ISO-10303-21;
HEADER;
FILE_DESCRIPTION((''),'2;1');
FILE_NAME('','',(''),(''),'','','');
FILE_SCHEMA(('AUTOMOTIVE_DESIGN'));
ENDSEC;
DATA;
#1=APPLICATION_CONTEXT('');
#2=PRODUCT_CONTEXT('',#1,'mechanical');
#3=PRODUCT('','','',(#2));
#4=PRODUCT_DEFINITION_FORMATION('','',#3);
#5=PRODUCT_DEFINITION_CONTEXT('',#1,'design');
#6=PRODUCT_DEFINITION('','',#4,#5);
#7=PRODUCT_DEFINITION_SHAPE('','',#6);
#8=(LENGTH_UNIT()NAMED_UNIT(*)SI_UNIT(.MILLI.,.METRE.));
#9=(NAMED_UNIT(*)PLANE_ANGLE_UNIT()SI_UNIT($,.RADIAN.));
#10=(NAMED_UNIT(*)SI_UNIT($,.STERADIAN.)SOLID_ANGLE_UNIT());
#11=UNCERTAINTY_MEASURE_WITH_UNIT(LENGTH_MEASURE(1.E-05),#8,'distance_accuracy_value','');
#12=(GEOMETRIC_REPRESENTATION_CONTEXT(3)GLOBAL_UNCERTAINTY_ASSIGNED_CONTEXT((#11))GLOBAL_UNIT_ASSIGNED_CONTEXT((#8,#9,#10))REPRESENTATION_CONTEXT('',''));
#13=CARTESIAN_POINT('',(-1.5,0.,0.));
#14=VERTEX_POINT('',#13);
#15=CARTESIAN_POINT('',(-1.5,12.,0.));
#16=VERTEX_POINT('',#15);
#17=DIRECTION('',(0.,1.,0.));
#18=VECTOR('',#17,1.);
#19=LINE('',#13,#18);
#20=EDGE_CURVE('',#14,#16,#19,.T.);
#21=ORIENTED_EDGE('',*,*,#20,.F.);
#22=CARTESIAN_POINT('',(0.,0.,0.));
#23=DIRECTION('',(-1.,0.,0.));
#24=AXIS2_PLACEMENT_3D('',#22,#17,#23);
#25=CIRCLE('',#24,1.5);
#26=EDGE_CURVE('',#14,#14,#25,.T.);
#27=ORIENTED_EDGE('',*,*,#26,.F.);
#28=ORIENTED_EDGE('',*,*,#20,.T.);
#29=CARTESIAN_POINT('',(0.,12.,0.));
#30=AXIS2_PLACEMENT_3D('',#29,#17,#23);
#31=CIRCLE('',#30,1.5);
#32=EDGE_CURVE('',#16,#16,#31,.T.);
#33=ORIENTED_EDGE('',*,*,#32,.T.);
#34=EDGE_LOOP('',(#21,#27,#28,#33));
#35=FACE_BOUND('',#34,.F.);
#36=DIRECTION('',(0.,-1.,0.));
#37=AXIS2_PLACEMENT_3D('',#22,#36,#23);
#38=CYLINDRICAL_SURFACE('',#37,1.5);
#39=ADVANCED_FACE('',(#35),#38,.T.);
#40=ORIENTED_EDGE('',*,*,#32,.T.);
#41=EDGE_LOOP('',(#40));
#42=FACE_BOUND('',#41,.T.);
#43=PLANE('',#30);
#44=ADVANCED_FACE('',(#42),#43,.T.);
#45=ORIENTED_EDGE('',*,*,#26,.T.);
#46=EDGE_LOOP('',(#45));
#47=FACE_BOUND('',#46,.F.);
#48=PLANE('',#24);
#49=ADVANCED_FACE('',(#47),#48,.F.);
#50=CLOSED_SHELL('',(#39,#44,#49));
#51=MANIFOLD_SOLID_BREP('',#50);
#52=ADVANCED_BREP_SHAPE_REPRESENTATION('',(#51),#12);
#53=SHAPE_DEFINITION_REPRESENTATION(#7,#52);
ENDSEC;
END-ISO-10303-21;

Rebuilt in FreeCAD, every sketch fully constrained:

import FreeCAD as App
import Part
import Sketcher

V = App.Vector
Q = App.Units.Quantity

doc = App.newDocument("Part")
body = doc.addObject("PartDesign::Body", "Body")

# Sketch on XZ plane
sketch1 = body.newObject("Sketcher::SketchObject", "Sketch")
sketch1.AttachmentSupport = (doc.getObject("XZ_Plane"), [""])
sketch1.MapMode = "FlatFace"
sketch1.addGeometry(Part.Circle(V(0, 0, 0), V(0, 0, 1), 1.5), False)
sketch1.addConstraint([
    Sketcher.Constraint("Coincident", 0, 3, -1, 1),
    Sketcher.Constraint("Diameter", 0, Q("3 mm")),
])
pad1 = body.newObject("PartDesign::Pad", "Pad")
pad1.Profile = sketch1
pad1.Length = 12
pad1.Reversed = True

doc.recompute()
